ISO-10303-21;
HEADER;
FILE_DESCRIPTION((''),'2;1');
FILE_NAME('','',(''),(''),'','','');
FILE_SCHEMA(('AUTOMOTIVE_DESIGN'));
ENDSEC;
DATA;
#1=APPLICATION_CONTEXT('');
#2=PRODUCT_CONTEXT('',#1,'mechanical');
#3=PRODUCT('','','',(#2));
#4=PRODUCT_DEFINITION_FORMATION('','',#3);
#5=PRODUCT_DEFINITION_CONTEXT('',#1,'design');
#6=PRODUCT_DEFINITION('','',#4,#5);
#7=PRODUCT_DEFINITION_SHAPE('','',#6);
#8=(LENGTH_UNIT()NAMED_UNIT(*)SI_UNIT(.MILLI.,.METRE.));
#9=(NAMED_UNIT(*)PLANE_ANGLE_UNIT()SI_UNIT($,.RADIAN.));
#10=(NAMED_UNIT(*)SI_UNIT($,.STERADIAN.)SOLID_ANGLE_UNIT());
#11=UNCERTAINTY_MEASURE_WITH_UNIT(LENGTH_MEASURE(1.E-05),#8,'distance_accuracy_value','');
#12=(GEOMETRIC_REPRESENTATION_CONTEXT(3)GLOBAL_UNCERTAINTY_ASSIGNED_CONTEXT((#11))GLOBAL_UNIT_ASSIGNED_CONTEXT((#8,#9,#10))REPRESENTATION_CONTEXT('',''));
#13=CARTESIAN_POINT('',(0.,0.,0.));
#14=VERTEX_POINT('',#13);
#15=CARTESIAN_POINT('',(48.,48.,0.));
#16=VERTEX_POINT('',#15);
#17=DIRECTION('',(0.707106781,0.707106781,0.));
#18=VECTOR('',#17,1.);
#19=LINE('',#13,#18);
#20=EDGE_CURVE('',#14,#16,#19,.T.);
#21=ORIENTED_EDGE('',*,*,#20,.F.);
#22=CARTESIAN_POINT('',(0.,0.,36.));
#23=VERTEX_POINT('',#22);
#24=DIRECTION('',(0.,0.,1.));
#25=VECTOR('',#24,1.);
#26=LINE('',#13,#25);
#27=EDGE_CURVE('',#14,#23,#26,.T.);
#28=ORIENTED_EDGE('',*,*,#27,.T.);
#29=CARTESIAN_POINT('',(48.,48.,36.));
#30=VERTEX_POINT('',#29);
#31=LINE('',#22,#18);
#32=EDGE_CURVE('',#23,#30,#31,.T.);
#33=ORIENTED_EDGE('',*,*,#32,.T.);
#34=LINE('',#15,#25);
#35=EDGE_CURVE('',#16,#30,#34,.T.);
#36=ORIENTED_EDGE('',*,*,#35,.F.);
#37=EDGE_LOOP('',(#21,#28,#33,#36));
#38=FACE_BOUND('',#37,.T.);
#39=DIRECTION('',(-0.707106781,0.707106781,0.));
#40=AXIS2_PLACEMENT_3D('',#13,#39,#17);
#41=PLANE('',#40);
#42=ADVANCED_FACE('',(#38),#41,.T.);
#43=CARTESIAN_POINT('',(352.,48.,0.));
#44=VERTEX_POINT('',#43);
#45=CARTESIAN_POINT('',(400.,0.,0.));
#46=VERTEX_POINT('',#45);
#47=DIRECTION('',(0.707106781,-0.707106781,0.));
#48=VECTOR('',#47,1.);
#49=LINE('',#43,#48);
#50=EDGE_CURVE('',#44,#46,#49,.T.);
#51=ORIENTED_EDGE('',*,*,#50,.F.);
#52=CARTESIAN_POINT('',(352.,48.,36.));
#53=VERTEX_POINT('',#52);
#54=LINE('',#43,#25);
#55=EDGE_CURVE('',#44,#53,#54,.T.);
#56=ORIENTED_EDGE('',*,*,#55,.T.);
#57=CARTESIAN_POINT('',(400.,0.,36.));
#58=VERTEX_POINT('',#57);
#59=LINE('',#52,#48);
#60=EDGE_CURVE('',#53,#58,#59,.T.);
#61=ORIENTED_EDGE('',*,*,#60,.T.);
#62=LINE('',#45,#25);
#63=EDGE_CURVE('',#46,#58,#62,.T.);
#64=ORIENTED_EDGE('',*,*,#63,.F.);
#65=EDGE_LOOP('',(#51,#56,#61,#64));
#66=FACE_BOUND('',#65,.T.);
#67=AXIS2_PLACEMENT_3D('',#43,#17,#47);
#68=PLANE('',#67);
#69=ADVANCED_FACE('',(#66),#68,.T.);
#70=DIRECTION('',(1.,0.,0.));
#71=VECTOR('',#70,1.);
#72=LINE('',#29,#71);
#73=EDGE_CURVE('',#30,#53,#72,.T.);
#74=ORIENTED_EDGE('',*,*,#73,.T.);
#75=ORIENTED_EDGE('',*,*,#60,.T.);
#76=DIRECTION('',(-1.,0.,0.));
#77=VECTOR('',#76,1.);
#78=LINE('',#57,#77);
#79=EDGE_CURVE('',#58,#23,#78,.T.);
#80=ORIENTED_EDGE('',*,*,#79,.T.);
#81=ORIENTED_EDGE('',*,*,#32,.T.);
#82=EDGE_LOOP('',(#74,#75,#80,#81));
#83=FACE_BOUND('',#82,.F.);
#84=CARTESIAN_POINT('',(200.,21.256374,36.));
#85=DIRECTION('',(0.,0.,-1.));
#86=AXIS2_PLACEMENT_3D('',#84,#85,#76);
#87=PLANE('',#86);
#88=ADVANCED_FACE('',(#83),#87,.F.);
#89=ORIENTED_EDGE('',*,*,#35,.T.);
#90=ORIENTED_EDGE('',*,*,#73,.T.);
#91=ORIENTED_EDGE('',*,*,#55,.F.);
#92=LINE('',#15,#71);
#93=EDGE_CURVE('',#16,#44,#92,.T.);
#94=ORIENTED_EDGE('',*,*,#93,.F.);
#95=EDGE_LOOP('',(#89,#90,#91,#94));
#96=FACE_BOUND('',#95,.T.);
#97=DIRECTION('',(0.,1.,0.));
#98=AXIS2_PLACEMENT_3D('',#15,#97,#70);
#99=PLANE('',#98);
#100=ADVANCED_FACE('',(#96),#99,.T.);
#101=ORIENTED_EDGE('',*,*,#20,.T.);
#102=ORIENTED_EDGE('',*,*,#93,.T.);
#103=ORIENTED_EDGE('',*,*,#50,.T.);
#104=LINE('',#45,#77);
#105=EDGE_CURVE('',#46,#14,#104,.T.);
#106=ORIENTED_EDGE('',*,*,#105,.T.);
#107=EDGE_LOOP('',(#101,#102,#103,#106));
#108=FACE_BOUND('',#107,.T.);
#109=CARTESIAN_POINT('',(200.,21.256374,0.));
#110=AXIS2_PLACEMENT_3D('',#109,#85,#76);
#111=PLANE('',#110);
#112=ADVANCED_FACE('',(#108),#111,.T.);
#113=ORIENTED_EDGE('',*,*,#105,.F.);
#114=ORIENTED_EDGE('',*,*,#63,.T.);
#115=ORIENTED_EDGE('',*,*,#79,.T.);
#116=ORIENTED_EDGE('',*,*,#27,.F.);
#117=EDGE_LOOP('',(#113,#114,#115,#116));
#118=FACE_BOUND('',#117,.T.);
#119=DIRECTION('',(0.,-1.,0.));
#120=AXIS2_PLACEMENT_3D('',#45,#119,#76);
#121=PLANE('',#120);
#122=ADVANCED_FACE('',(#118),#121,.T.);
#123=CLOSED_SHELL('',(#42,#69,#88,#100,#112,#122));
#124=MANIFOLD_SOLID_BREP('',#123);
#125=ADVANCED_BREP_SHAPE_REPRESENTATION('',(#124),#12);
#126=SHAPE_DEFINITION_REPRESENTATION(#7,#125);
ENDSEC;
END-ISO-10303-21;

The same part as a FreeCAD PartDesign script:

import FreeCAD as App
import Part
import Sketcher
from FreeCAD import Vector


def add_polygon(sketch, points):
    """Adds a closed chain of lines whose ends are joined by coincident constraints."""
    first, n = sketch.GeometryCount, len(points)
    for a, b in zip(points, points[1:] + points[:1]):
        sketch.addGeometry(Part.LineSegment(App.Vector(*a, 0), App.Vector(*b, 0)), False)
    for i in range(n):
        sketch.addConstraint(Sketcher.Constraint("Coincident", first + i, 2, first + (i + 1) % n, 1))

doc = App.newDocument("Part")
params = doc.addObject("Spreadsheet::Sheet", "Params")
for row, (alias, value) in enumerate([
    ("sketch1_width", "400 mm"),
    ("sketch1_width2", "304 mm"),
    ("pad1_length", "36 mm"),
], start=1):
    params.set(f"A{row}", alias)
    params.set(f"B{row}", "=" + value)
    params.setAlias(f"B{row}", alias)

body = doc.addObject("PartDesign::Body", "Body")

# Sketch on XY plane
sketch1 = body.newObject("Sketcher::SketchObject", "Sketch")
sketch1.AttachmentSupport = (doc.getObject("XY_Plane"), [""])
sketch1.MapMode = "FlatFace"
add_polygon(sketch1, [(48, 48), (0, 0), (400, 0), (352, 48)])  # lines 0-3
sketch1.addConstraint([
    Sketcher.Constraint("Horizontal", 1),
    Sketcher.Constraint("Horizontal", 3),
    Sketcher.Constraint("Coincident", 0, 2, -1, 1),
    Sketcher.Constraint("Perpendicular", 0, 2),
    Sketcher.Constraint("Equal", 0, 2),
    Sketcher.Constraint("DistanceX", 1, 1, 1, 2, 400.0),
    Sketcher.Constraint("DistanceX", 3, 2, 3, 1, 304.0),
])
sketch1.setExpression("Constraints[9]", "Params.sketch1_width")
sketch1.setExpression("Constraints[10]", "Params.sketch1_width2")
pad1 = body.newObject("PartDesign::Pad", "Pad")
pad1.Profile = sketch1
pad1.setExpression("Length", "Params.pad1_length")

doc.recompute()
